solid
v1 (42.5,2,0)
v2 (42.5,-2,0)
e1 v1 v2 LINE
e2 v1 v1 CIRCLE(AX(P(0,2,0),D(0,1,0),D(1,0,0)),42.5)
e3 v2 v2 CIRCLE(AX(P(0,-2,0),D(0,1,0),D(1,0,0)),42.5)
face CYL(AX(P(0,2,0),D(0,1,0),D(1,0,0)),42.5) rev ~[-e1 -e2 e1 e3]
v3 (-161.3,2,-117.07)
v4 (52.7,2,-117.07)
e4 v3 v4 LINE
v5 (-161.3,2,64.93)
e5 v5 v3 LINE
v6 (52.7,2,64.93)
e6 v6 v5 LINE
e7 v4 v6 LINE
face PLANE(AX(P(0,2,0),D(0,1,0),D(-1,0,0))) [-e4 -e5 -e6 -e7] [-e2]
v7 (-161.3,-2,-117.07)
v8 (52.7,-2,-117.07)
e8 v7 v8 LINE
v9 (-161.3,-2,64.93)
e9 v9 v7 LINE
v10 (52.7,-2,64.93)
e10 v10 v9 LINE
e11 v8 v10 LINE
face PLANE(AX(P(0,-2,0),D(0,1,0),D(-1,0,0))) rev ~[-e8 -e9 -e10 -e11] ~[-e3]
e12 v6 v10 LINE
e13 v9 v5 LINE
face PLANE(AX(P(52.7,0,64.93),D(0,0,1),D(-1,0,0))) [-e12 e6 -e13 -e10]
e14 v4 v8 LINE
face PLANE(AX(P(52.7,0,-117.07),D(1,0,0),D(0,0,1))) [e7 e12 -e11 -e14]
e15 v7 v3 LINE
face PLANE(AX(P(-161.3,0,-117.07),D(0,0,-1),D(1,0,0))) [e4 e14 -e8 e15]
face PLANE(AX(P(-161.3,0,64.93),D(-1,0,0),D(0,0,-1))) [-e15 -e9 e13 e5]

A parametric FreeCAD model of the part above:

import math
import FreeCAD as App
import Part
import Sketcher
from FreeCAD import Vector
Q = App.Units.Quantity

doc = App.newDocument("Part")
params = doc.addObject("Spreadsheet::Sheet", "Params")
for row, (alias, value) in enumerate([
    ("sketch1_diameter", "75 mm"),
    ("sketch1_width", "214 mm"),
    ("sketch1_height", "182 mm"),
    ("pad1_length", "4 mm"),
    ("sketch2_diameter", "85 mm"),
    ("sketch2_diameter2", "75 mm"),
    ("pad2_length", "70 mm"),
    ("sketch3_diameter", "75 mm"),
    ("sketch3_diameter2", "40 mm"),
    ("pad3_length", "3 mm"),
    ("sketch4_radius", "35 mm"),
    ("sketch4_height", "3 mm"),
    ("groove_angle", "360 deg"),
    ("sketch5_diameter", "85 mm"),
    ("pocket1_length", "80 mm"),
], start=1):
    params.set(f"A{row}", alias)
    params.set(f"B{row}", "=" + value)
    params.setAlias(f"B{row}", alias)

body = doc.addObject("PartDesign::Body", "Body")

# Sketch on XZ plane
sketch1 = body.newObject("Sketcher::SketchObject", "Sketch")
sketch1.AttachmentSupport = (doc.getObject("XZ_Plane"), [""])
sketch1.MapMode = "FlatFace"
sketch1.addGeometry([
    Part.LineSegment(Vector(53, -117, 0), Vector(-161, -117, 0)),  # 0
    Part.LineSegment(Vector(-161, -117, 0), Vector(-161, 65, 0)),  # 1
    Part.LineSegment(Vector(-161, 65, 0), Vector(53, 65, 0)),  # 2
    Part.LineSegment(Vector(53, 65, 0), Vector(53, -117, 0)),  # 3
    Part.Circle(Vector(0, 0, 0), Vector(0, 0, 1), 38),  # 4
], False)
sketch1.addConstraint([
    Sketcher.Constraint("Coincident", 0, 2, 1, 1),
    Sketcher.Constraint("Coincident", 1, 2, 2, 1),
    Sketcher.Constraint("Coincident", 2, 2, 3, 1),
    Sketcher.Constraint("Coincident", 3, 2, 0, 1),
    Sketcher.Constraint("Horizontal", 0),
    Sketcher.Constraint("Vertical", 1),
    Sketcher.Constraint("Horizontal", 2),
    Sketcher.Constraint("Vertical", 3),
    Sketcher.Constraint("Coincident", 4, 3, -1, 1),
    Sketcher.Constraint("Diameter", 4, Q("75 mm")),
    Sketcher.Constraint("DistanceX", 0, 2, 0, 1, Q("214 mm")),
    Sketcher.Constraint("DistanceY", 1, 1, 1, 2, Q("182 mm")),
    Sketcher.Constraint("DistanceX", -1, 1, 2, 2, Q("52.7 mm")),
    Sketcher.Constraint("DistanceY", -1, 1, 1, 2, Q("64.93 mm")),
])
sketch1.setExpression("Constraints[9]", "Params.sketch1_diameter")
sketch1.setExpression("Constraints[10]", "Params.sketch1_width")
sketch1.setExpression("Constraints[11]", "Params.sketch1_height")
pad1 = body.newObject("PartDesign::Pad", "Pad")
pad1.Profile = sketch1
pad1.setExpression("Length", "Params.pad1_length")
pad1.Midplane = True

# Sketch on XZ plane
sketch2 = body.newObject("Sketcher::SketchObject", "Sketch001")
sketch2.AttachmentSupport = (doc.getObject("XZ_Plane"), [""])
sketch2.MapMode = "FlatFace"
sketch2.AttachmentOffset = App.Placement(Vector(0, 0, -35), App.Rotation())
sketch2.addGeometry([
    Part.Circle(Vector(0, 0, 0), Vector(0, 0, 1), 42),
    Part.Circle(Vector(0, 0, 0), Vector(0, 0, 1), 38),
], False)
sketch2.addConstraint([
    Sketcher.Constraint("Coincident", 0, 3, -1, 1),
    Sketcher.Constraint("Coincident", 1, 3, -1, 1),
    Sketcher.Constraint("Diameter", 0, Q("85 mm")),
    Sketcher.Constraint("Diameter", 1, Q("75 mm")),
])
sketch2.setExpression("Constraints[2]", "Params.sketch2_diameter")
sketch2.setExpression("Constraints[3]", "Params.sketch2_diameter2")
pad2 = body.newObject("PartDesign::Pad", "Pad001")
pad2.Profile = sketch2
pad2.setExpression("Length", "Params.pad2_length")

# Sketch on XZ plane
sketch3 = body.newObject("Sketcher::SketchObject", "Sketch002")
sketch3.AttachmentSupport = (doc.getObject("XZ_Plane"), [""])
sketch3.MapMode = "FlatFace"
sketch3.AttachmentOffset = App.Placement(Vector(0, 0, 35), App.Rotation())
sketch3.addGeometry([
    Part.Circle(Vector(0, 0, 0), Vector(0, 0, 1), 38),
    Part.Circle(Vector(0, 0, 0), Vector(0, 0, 1), 20),
], False)
sketch3.addConstraint([
    Sketcher.Constraint("Coincident", 0, 3, -1, 1),
    Sketcher.Constraint("Coincident", 1, 3, -1, 1),
    Sketcher.Constraint("Diameter", 0, Q("75 mm")),
    Sketcher.Constraint("Diameter", 1, Q("40 mm")),
])
sketch3.setExpression("Constraints[2]", "Params.sketch3_diameter")
sketch3.setExpression("Constraints[3]", "Params.sketch3_diameter2")
pad3 = body.newObject("PartDesign::Pad", "Pad002")
pad3.Profile = sketch3
pad3.setExpression("Length", "Params.pad3_length")
pad3.Reversed = True

# Sketch on XY plane
sketch4 = body.newObject("Sketcher::SketchObject", "Sketch003")
sketch4.AttachmentSupport = (doc.getObject("XY_Plane"), [""])
sketch4.MapMode = "FlatFace"
sketch4.addGeometry([
    Part.LineSegment(Vector(-20, -32, 0), Vector(-24.5, -32, 0)),
    Part.ArcOfCircle(Part.Circle(Vector(-3, -4.4, 0), Vector(0, 0, 1), 35), math.radians(-127.96), math.radians(-119.06)),
    Part.LineSegment(Vector(-20, -35, 0), Vector(-20, -32, 0)),
], False)
sketch4.addConstraint([
    Sketcher.Constraint("Coincident", 0, 2, 1, 1),
    Sketcher.Constraint("Coincident", 1, 2, 2, 1),
    Sketcher.Constraint("Coincident", 2, 2, 0, 1),
    Sketcher.Constraint("Horizontal", 0),
    Sketcher.Constraint("Vertical", 2),
    Sketcher.Constraint("Radius", 1, Q("35 mm")),
    Sketcher.Constraint("DistanceY", 1, 2, -1, 1, Q("35 mm")),
    Sketcher.Constraint("DistanceY", 2, 1, 2, 2, Q("3 mm")),
    Sketcher.Constraint("DistanceX", 0, 2, 0, 1, Q("4.5305 mm")),
    Sketcher.Constraint("DistanceX", 1, 2, -1, 1, Q("20 mm")),
])
sketch4.setExpression("Constraints[5]", "Params.sketch4_radius")
sketch4.setExpression("Constraints[7]", "Params.sketch4_height")
groove = body.newObject("PartDesign::Groove", "Groove")
groove.Profile = sketch4
groove.ReferenceAxis = (sketch4, ["V_Axis"])
groove.setExpression("Angle", "Params.groove_angle")

# Sketch on XZ plane
sketch5 = body.newObject("Sketcher::SketchObject", "Sketch004")
sketch5.AttachmentSupport = (doc.getObject("XZ_Plane"), [""])
sketch5.MapMode = "FlatFace"
sketch5.AttachmentOffset = App.Placement(Vector(0, 0, -2), App.Rotation())
sketch5.addGeometry(Part.Circle(Vector(0, 0, 0), Vector(0, 0, 1), 42), False)
sketch5.addConstraint([
    Sketcher.Constraint("Coincident", 0, 3, -1, 1),
    Sketcher.Constraint("Diameter", 0, Q("85 mm")),
])
sketch5.setExpression("Constraints[1]", "Params.sketch5_diameter")
pocket1 = body.newObject("PartDesign::Pocket", "Pocket")
pocket1.Profile = sketch5
pocket1.setExpression("Length", "Params.pocket1_length")
pocket1.Midplane = True

doc.recompute()
